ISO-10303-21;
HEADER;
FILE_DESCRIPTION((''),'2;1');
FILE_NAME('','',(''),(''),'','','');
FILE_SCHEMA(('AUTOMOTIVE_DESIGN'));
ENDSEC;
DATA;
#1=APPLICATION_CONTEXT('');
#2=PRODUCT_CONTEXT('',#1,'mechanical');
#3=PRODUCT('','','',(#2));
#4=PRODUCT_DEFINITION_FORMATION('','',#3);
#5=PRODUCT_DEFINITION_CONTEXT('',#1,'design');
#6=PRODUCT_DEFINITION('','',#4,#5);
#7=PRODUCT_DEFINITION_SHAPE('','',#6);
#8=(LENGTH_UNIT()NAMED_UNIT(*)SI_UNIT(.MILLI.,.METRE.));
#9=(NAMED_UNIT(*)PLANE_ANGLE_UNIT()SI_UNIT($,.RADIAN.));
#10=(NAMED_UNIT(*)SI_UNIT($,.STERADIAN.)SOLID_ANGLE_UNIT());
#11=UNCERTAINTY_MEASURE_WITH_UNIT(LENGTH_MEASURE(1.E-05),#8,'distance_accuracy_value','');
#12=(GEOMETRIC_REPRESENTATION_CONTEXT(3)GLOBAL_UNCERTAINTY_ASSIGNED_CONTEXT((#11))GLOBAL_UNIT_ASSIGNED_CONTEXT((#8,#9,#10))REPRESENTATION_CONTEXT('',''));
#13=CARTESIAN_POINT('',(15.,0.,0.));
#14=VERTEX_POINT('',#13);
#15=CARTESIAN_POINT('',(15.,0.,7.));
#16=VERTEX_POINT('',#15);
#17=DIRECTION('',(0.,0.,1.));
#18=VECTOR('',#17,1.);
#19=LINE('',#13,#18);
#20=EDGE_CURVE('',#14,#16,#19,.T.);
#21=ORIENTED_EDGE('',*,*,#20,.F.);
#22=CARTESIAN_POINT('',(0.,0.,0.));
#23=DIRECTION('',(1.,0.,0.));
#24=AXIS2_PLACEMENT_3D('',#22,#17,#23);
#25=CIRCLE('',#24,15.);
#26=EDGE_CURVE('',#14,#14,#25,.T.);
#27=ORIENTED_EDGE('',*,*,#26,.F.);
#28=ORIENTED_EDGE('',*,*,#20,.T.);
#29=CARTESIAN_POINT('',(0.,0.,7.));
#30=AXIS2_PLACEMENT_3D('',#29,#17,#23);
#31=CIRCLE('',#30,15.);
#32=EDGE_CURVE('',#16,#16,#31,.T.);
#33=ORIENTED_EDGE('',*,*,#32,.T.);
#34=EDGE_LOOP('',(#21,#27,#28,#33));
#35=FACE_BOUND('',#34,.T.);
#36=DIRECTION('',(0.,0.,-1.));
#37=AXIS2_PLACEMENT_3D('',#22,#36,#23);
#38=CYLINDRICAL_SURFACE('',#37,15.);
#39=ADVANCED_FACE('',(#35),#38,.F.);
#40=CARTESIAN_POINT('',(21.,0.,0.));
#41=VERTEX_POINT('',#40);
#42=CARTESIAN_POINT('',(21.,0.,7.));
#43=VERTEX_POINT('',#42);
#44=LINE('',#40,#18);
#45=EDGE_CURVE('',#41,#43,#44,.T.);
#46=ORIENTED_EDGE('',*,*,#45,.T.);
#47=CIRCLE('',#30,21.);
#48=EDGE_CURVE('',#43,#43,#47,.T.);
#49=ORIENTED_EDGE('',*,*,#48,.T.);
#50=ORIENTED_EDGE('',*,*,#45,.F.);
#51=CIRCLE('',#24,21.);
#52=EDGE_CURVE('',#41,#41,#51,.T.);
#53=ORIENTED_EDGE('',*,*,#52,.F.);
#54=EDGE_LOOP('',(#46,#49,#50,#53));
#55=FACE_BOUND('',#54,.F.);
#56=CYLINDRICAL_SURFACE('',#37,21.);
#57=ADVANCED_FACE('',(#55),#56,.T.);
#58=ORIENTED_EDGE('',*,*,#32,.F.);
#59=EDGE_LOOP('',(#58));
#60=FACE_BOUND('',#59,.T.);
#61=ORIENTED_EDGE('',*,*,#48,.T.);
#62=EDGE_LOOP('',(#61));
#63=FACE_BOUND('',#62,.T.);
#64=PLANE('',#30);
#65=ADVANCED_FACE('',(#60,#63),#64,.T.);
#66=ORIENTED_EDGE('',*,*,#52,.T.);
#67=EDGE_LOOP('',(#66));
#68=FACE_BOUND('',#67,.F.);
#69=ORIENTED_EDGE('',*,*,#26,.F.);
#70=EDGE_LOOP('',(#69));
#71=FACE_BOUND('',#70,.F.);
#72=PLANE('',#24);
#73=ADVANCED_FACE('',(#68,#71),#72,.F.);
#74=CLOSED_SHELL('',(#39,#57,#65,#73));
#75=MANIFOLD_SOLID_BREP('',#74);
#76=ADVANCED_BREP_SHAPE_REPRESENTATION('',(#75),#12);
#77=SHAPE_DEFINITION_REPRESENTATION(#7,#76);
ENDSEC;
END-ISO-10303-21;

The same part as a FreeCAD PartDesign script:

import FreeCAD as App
import Part
import Sketcher
from FreeCAD import Vector

doc = App.newDocument("Part")
body = doc.addObject("PartDesign::Body", "Body")

sketch1 = body.newObject("Sketcher::SketchObject", "Sketch")
sketch1.AttachmentSupport = (doc.getObject("XY_Plane"), [""])
sketch1.MapMode = "FlatFace"
sketch1.addGeometry([
    Part.Circle(Vector(0, 0, 0), Vector(0, 0, 1), 21),
    Part.Circle(Vector(0, 0, 0), Vector(0, 0, 1), 15),
], False)
sketch1.addConstraint([
    Sketcher.Constraint("Coincident", 0, 3, -1, 1),
    Sketcher.Constraint("Coincident", 1, 3, -1, 1),
    Sketcher.Constraint("Diameter", 0, 42.0),
    Sketcher.Constraint("Diameter", 1, 30.0),
])
pad1 = body.newObject("PartDesign::Pad", "Pad")
pad1.Profile = sketch1
pad1.Length = 7

doc.recompute()
